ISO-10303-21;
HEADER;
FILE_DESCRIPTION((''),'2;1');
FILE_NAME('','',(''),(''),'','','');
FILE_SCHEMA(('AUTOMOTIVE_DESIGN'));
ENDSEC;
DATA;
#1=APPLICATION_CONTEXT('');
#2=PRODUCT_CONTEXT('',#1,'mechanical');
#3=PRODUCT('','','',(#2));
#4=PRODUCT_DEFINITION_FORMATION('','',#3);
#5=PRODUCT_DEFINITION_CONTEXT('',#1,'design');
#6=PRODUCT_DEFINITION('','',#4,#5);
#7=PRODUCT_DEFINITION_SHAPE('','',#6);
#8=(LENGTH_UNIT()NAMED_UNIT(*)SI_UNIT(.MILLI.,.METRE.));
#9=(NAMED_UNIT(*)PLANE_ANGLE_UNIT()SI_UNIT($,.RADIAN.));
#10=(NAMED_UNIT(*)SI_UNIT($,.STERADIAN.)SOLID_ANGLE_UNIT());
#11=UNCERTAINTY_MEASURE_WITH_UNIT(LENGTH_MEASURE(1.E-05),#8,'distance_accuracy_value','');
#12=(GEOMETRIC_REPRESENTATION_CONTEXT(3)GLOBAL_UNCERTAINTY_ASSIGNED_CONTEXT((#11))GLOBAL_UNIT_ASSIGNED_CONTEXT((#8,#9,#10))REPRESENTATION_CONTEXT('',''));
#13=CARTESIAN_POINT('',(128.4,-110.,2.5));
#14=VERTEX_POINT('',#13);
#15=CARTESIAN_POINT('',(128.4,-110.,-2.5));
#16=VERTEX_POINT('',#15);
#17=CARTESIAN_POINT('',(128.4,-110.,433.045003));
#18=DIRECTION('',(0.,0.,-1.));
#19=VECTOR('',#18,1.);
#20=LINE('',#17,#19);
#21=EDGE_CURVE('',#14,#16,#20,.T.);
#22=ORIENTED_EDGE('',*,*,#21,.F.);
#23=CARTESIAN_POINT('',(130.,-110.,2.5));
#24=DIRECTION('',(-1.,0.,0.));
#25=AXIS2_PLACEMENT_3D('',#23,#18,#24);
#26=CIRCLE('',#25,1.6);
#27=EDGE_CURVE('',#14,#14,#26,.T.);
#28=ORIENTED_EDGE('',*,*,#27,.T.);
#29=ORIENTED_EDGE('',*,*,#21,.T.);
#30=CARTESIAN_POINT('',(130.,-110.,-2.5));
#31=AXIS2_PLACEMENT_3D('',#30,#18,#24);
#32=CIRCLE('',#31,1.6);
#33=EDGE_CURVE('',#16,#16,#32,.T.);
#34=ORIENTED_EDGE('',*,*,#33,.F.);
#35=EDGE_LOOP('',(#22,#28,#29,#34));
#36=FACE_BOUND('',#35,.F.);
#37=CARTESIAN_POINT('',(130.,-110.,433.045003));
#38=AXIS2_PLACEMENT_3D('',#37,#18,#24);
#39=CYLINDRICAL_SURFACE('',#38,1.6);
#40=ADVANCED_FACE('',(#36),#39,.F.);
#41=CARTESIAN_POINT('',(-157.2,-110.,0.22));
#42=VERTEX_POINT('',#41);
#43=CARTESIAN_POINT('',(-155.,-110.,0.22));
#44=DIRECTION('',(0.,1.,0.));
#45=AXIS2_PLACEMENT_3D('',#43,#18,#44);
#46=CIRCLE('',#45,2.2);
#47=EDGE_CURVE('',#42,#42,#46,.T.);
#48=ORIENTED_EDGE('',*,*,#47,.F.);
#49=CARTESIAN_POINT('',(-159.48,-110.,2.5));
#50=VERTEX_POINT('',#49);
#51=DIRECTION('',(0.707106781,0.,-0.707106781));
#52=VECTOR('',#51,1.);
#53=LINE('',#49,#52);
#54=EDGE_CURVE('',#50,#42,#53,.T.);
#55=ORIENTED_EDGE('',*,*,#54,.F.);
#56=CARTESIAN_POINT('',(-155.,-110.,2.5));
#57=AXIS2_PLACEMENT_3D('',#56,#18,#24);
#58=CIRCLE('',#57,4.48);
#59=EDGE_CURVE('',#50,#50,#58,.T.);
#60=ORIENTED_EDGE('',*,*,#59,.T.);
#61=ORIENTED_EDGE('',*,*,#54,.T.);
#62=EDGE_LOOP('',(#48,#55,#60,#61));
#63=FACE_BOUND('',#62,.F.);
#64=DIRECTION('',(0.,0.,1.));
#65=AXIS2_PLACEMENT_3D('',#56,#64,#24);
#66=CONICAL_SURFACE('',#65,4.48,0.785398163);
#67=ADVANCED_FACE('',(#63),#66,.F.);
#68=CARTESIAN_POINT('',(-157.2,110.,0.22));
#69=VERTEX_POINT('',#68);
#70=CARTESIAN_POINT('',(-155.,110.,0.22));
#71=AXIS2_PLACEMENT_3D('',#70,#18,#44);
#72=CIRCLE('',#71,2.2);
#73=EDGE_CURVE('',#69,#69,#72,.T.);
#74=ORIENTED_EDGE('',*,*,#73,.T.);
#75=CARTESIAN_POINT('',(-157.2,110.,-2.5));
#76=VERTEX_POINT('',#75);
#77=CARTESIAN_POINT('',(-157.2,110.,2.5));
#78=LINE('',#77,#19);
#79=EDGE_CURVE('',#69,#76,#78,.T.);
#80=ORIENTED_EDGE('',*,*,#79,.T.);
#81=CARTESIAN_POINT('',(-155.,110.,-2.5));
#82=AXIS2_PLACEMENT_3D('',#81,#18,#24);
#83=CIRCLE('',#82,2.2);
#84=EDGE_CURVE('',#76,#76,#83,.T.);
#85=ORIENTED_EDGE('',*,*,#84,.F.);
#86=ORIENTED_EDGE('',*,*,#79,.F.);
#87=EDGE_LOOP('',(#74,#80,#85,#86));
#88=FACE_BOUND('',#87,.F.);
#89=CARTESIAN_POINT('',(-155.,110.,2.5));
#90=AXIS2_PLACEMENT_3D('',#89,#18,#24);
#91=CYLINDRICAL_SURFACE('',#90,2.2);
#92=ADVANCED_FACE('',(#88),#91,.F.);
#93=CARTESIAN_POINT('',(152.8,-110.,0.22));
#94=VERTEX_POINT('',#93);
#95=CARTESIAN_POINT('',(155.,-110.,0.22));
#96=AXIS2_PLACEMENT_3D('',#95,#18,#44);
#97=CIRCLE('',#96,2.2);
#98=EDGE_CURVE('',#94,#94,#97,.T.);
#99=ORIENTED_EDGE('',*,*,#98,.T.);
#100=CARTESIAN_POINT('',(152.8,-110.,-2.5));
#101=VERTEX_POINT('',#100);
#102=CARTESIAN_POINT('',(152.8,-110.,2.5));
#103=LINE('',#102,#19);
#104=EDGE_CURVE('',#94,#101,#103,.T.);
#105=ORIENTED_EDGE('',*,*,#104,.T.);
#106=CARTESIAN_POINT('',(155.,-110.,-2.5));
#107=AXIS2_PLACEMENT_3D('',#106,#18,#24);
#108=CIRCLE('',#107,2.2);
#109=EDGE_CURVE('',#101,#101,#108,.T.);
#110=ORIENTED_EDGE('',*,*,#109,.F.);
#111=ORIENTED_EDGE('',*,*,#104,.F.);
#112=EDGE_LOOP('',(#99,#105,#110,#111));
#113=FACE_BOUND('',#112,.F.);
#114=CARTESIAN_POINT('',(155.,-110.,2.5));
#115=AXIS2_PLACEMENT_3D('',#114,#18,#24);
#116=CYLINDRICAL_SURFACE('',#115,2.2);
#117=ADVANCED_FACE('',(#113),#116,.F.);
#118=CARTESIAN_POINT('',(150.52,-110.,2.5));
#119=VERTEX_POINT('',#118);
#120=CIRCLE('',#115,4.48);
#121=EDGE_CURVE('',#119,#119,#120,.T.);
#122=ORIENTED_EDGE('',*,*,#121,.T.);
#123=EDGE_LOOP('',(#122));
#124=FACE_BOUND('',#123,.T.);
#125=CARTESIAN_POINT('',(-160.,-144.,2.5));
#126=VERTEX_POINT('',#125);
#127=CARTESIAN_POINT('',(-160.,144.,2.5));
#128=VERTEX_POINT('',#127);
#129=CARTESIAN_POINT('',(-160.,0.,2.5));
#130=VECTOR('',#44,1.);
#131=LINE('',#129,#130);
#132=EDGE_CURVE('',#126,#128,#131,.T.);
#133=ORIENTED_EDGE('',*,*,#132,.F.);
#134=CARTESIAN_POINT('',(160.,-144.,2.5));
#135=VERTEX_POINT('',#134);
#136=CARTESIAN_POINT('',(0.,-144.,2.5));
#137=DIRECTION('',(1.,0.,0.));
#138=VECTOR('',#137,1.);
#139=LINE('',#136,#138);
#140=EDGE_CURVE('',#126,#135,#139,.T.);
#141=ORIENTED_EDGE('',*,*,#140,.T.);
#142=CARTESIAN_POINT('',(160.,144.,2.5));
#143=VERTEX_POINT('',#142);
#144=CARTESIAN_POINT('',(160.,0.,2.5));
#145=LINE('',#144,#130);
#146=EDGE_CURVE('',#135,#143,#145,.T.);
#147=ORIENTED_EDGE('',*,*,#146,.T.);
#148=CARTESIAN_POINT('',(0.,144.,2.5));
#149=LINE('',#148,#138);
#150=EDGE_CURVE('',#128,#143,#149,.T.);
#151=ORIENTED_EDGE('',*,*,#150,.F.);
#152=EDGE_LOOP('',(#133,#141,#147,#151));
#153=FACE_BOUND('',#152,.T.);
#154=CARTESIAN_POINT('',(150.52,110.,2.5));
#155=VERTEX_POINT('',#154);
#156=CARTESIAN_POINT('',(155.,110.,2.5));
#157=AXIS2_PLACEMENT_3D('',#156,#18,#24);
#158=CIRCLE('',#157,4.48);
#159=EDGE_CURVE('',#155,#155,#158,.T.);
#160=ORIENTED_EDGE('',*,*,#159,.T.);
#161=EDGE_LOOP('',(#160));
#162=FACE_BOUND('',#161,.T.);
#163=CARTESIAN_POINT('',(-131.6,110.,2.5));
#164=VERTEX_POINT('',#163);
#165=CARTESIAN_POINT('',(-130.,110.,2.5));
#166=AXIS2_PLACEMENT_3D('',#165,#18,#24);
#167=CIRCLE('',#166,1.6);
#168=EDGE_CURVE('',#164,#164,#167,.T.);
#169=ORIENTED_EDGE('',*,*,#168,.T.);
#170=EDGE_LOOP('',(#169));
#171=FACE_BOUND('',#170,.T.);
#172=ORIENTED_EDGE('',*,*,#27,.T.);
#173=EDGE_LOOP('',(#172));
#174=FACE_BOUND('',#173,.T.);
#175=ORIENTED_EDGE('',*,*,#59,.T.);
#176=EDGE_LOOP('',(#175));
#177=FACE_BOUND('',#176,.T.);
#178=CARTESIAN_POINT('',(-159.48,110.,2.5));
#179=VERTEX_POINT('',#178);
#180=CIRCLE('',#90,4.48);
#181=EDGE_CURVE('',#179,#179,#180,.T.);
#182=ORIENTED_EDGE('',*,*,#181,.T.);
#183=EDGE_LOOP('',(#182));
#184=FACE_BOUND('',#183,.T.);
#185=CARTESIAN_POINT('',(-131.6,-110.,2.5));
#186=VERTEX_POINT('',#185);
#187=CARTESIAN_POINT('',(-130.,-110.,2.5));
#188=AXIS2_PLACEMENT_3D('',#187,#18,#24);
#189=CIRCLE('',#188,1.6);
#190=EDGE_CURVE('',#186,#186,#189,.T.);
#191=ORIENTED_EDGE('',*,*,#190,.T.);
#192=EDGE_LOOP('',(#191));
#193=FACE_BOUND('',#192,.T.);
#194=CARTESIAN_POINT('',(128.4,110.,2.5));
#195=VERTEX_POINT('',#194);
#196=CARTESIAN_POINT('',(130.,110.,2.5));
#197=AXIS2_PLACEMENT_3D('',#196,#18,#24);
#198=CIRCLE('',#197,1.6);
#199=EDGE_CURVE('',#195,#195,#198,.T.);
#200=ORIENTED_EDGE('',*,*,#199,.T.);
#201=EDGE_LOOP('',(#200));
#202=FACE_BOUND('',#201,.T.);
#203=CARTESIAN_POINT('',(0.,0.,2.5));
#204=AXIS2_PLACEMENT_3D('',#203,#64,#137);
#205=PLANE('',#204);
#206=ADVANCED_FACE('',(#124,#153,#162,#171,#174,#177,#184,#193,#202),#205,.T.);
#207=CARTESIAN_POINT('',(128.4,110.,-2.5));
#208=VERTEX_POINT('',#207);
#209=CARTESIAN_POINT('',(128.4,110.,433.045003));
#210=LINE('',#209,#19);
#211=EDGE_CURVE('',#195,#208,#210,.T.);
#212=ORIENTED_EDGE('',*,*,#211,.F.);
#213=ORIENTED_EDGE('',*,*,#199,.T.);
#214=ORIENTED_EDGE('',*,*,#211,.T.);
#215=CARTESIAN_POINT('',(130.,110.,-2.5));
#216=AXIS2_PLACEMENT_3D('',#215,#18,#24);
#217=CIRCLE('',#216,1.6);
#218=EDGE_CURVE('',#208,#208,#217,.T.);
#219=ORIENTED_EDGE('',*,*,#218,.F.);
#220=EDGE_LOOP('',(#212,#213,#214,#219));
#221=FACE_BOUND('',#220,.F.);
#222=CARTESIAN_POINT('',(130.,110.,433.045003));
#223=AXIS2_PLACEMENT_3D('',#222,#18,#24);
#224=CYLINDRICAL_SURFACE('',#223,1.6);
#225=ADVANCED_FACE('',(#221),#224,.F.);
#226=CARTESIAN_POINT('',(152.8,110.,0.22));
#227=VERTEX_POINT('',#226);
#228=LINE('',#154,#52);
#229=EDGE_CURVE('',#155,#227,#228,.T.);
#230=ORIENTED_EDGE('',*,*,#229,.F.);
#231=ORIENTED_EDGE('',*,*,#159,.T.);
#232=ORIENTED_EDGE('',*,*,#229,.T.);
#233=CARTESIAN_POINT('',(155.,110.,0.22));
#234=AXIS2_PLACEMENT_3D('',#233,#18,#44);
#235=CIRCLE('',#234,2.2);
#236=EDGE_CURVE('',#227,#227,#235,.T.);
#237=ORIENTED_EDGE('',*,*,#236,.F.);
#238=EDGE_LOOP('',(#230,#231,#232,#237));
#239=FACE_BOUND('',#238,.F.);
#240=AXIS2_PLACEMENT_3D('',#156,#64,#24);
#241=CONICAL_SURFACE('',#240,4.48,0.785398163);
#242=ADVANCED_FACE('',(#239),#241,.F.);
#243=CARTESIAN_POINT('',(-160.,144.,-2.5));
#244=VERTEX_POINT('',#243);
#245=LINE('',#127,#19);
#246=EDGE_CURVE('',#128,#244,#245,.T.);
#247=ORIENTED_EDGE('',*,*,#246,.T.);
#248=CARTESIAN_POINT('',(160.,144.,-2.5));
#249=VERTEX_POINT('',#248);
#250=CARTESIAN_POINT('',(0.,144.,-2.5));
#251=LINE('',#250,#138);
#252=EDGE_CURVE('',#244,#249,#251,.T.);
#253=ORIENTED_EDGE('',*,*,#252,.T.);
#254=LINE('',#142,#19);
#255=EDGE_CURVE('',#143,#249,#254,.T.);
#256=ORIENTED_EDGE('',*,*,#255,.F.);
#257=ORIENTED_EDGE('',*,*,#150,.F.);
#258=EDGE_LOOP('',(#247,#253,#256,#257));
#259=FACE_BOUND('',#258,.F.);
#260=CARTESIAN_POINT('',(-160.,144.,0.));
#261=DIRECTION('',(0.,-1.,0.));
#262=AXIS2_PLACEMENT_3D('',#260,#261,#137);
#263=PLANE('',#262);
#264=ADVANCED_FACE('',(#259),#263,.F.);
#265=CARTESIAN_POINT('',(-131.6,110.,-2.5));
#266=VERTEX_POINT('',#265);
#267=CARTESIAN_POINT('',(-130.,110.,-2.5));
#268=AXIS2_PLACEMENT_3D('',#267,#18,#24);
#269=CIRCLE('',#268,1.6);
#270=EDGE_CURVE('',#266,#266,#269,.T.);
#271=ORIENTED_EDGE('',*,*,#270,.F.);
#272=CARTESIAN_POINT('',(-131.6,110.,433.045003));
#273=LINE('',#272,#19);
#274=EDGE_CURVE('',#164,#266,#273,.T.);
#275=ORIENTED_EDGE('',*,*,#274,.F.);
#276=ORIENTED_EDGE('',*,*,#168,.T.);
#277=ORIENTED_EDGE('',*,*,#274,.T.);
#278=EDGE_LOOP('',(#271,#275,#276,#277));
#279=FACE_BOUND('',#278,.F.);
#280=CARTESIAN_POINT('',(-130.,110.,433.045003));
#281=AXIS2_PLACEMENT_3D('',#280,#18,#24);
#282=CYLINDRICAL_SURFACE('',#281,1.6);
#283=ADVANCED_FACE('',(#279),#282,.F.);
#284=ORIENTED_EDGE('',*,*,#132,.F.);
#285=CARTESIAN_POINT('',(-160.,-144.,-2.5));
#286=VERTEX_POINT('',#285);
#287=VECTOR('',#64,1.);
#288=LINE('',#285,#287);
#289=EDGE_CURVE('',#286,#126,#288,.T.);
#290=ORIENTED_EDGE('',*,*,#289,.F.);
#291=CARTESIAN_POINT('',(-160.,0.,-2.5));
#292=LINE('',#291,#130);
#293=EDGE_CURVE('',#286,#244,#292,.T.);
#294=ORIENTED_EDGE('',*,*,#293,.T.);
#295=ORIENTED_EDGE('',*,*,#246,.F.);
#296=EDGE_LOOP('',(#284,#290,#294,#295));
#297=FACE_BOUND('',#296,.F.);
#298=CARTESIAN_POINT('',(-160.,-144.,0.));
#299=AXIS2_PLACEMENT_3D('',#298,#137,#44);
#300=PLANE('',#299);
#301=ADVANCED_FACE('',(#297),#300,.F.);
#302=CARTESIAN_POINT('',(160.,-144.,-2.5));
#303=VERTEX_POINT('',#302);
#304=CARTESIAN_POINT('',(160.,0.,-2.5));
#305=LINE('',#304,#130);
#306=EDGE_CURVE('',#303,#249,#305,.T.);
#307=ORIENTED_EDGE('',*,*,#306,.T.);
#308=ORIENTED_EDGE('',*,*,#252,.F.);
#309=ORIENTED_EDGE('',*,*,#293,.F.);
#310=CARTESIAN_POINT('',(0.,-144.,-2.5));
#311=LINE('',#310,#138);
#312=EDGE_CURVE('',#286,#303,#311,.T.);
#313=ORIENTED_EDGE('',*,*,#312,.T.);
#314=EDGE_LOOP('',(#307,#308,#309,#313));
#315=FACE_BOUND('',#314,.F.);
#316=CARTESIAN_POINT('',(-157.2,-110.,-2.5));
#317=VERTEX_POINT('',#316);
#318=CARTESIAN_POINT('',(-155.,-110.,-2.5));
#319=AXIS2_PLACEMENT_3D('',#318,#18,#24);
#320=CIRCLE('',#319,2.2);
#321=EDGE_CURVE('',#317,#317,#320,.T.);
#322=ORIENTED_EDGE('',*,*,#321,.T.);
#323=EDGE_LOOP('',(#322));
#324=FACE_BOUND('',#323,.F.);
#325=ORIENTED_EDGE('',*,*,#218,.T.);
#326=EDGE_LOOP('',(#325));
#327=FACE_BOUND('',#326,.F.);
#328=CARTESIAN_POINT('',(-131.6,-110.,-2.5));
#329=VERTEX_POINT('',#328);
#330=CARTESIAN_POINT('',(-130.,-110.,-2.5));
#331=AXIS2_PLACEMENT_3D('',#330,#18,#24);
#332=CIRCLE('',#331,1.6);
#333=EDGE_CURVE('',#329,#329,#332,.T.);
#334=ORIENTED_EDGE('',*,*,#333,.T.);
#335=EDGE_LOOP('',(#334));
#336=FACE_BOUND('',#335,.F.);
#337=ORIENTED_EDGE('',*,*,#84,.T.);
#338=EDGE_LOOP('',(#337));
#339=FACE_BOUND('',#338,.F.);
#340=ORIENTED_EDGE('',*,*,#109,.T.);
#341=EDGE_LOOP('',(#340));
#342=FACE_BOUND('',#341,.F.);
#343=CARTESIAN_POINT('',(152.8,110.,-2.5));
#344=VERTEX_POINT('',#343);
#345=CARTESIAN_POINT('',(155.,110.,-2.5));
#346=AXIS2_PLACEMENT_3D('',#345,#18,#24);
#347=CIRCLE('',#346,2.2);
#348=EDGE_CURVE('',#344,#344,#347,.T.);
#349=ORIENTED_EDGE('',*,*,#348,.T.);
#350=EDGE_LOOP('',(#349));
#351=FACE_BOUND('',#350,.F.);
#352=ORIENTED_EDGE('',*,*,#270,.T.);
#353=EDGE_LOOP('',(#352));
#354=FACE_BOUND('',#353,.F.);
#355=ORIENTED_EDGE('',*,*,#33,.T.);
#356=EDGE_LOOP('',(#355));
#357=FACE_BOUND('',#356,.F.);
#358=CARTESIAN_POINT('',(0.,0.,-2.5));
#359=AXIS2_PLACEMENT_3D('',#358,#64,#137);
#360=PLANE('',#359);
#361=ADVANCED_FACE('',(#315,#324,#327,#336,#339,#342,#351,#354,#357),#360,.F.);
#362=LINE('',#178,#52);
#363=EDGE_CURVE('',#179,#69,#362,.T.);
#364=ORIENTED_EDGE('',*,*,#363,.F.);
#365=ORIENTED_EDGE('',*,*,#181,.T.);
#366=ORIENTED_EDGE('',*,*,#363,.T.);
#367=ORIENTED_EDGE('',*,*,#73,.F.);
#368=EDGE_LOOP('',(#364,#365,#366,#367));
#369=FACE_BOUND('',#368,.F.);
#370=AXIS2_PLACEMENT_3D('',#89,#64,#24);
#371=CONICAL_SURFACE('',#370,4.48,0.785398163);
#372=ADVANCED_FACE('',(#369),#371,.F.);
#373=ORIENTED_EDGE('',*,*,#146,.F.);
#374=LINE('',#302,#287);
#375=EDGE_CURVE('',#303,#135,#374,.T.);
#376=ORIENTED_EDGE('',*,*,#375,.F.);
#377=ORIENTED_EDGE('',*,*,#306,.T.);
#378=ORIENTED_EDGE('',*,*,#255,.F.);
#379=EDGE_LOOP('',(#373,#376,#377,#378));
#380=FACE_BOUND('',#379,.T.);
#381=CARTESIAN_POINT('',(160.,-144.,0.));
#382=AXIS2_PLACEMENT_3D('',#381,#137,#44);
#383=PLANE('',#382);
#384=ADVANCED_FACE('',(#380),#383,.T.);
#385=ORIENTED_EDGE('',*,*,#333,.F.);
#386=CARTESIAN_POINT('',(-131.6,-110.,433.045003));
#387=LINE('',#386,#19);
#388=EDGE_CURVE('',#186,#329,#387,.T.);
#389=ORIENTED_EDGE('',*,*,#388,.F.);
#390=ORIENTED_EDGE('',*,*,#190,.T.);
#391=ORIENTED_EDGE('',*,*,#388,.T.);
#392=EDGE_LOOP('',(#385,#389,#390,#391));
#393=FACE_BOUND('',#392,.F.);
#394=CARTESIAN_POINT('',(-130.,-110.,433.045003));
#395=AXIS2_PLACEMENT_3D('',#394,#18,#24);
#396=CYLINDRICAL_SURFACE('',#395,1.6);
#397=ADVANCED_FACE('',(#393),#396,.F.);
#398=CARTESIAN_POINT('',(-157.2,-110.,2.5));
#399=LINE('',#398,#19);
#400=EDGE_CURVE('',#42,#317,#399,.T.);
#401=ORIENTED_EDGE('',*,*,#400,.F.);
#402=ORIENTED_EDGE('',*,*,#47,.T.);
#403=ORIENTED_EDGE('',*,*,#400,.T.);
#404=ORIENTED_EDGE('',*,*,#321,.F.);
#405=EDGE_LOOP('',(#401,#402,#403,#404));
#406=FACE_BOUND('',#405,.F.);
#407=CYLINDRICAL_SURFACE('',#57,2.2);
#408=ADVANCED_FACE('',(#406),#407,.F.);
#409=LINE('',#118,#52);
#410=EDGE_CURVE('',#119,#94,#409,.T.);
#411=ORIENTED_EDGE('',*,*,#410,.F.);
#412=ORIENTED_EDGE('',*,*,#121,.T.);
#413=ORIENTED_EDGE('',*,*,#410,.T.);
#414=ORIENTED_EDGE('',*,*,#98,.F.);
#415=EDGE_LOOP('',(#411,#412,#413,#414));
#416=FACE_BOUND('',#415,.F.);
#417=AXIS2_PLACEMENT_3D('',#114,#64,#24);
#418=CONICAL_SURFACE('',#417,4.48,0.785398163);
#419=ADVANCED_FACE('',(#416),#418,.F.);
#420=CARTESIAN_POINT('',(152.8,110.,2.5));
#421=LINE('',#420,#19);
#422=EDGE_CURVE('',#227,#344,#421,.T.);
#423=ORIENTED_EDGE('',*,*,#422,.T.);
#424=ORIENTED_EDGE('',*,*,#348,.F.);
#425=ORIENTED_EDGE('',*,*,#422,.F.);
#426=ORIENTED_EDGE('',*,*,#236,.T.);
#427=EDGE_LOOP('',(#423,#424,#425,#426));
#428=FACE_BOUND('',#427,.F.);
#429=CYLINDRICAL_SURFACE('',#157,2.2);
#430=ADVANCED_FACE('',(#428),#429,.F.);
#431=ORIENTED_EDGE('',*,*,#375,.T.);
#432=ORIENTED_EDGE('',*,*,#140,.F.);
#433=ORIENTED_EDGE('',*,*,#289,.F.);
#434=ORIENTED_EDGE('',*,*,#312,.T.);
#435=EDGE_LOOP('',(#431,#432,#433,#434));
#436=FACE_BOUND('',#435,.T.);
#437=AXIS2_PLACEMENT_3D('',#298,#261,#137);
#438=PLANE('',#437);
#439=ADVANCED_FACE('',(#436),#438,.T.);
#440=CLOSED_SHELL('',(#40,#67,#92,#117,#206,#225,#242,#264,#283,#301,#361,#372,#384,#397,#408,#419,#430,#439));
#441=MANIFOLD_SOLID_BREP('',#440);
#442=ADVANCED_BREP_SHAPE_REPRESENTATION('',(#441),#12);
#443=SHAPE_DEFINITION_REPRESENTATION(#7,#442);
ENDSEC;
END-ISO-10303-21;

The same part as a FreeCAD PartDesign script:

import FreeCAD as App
import Part
import Sketcher


def add_polygon(sketch, points):
    """Adds a closed chain of lines whose ends are joined by coincident constraints."""
    first, n = sketch.GeometryCount, len(points)
    for a, b in zip(points, points[1:] + points[:1]):
        sketch.addGeometry(Part.LineSegment(App.Vector(*a, 0), App.Vector(*b, 0)), False)
    for i in range(n):
        sketch.addConstraint(Sketcher.Constraint("Coincident", first + i, 2, first + (i + 1) % n, 1))

doc = App.newDocument("Part")
body = doc.addObject("PartDesign::Body", "Body")

# Sketch on XY plane
sketch1 = body.newObject("Sketcher::SketchObject", "Sketch")
sketch1.AttachmentSupport = (doc.getObject("XY_Plane"), [""])
sketch1.MapMode = "FlatFace"
add_polygon(sketch1, [(-160, 144), (-160, -144), (160, -144), (160, 144)])  # lines 0-3
sketch1.addConstraint([
    Sketcher.Constraint("Vertical", 0),
    Sketcher.Constraint("Horizontal", 1),
    Sketcher.Constraint("Vertical", 2),
    Sketcher.Constraint("Horizontal", 3),
    Sketcher.Constraint("Symmetric", 0, 2, 2, 2, -1, 1),
    Sketcher.Constraint("DistanceX", 1, 1, 1, 2, 320.0),
    Sketcher.Constraint("DistanceY", 0, 2, 0, 1, 288.0),
])
pad1 = body.newObject("PartDesign::Pad", "Pad")
pad1.Profile = sketch1
pad1.Length = 5
pad1.Midplane = True

# Sketch on XY plane
sketch2 = body.newObject("Sketcher::SketchObject", "Sketch001")
sketch2.AttachmentSupport = (doc.getObject("XY_Plane"), [""])
sketch2.MapMode = "FlatFace"
sketch2.AttachmentOffset = App.Placement(App.Vector(0, 0, 2.5), App.Rotation())
sketch2.addGeometry([
    Part.Circle(App.Vector(-155, -110, 0), App.Vector(0, 0, 1), 2.2),
    Part.Circle(App.Vector(155, -110, 0), App.Vector(0, 0, 1), 2.2),
    Part.Circle(App.Vector(155, 110, 0), App.Vector(0, 0, 1), 2.2),
    Part.Circle(App.Vector(-155, 110, 0), App.Vector(0, 0, 1), 2.2),
], False)
sketch2.addConstraint([
    Sketcher.Constraint("Equal", 0, 1),
    Sketcher.Constraint("Equal", 1, 2),
    Sketcher.Constraint("Equal", 2, 3),
    Sketcher.Constraint("Symmetric", 0, 3, 2, 3, -1, 1),
    Sketcher.Constraint("Symmetric", 1, 3, 3, 3, -1, 1),
    Sketcher.Constraint("Symmetric", 0, 3, 1, 3, -2),
    Sketcher.Constraint("Diameter", 0, 4.4),
    Sketcher.Constraint("DistanceX", 0, 3, -1, 1, 155.0),
    Sketcher.Constraint("DistanceY", 0, 3, -1, 1, 110.0),
])
doc.recompute()
hole = body.newObject("PartDesign::Hole", "Hole")
hole.Profile = sketch2
hole.ThreadType = "None"
hole.Diameter = 4.4
hole.DepthType = "Dimension"
hole.Depth = 17.25
hole.DrillPoint = "Angled"
hole.DrillPointAngle = 118
hole.HoleCutType = "Countersink"
hole.HoleCutDiameter = 8.96
hole.HoleCutCountersinkAngle = 90

# Sketch on XY plane
sketch3 = body.newObject("Sketcher::SketchObject", "Sketch002")
sketch3.AttachmentSupport = (doc.getObject("XY_Plane"), [""])
sketch3.MapMode = "FlatFace"
sketch3.AttachmentOffset = App.Placement(App.Vector(0, 0, 2.5), App.Rotation())
sketch3.addGeometry([
    Part.Circle(App.Vector(-130, -110, 0), App.Vector(0, 0, 1), 1.6),
    Part.Circle(App.Vector(-130, 110, 0), App.Vector(0, 0, 1), 1.6),
    Part.Circle(App.Vector(130, 110, 0), App.Vector(0, 0, 1), 1.6),
    Part.Circle(App.Vector(130, -110, 0), App.Vector(0, 0, 1), 1.6),
], False)
sketch3.addConstraint([
    Sketcher.Constraint("Equal", 0, 1),
    Sketcher.Constraint("Equal", 1, 2),
    Sketcher.Constraint("Equal", 2, 3),
    Sketcher.Constraint("Symmetric", 0, 3, 2, 3, -1, 1),
    Sketcher.Constraint("Symmetric", 1, 3, 3, 3, -1, 1),
    Sketcher.Constraint("Symmetric", 1, 3, 2, 3, -2),
    Sketcher.Constraint("Diameter", 0, 3.2),
    Sketcher.Constraint("DistanceX", 0, 3, -1, 1, 130.0),
    Sketcher.Constraint("DistanceY", 0, 3, -1, 1, 110.0),
])
doc.recompute()
hole2 = body.newObject("PartDesign::Hole", "Hole001")
hole2.Profile = sketch3
hole2.ThreadType = "None"
hole2.Diameter = 3.2
hole2.DepthType = "ThroughAll"

doc.recompute()
